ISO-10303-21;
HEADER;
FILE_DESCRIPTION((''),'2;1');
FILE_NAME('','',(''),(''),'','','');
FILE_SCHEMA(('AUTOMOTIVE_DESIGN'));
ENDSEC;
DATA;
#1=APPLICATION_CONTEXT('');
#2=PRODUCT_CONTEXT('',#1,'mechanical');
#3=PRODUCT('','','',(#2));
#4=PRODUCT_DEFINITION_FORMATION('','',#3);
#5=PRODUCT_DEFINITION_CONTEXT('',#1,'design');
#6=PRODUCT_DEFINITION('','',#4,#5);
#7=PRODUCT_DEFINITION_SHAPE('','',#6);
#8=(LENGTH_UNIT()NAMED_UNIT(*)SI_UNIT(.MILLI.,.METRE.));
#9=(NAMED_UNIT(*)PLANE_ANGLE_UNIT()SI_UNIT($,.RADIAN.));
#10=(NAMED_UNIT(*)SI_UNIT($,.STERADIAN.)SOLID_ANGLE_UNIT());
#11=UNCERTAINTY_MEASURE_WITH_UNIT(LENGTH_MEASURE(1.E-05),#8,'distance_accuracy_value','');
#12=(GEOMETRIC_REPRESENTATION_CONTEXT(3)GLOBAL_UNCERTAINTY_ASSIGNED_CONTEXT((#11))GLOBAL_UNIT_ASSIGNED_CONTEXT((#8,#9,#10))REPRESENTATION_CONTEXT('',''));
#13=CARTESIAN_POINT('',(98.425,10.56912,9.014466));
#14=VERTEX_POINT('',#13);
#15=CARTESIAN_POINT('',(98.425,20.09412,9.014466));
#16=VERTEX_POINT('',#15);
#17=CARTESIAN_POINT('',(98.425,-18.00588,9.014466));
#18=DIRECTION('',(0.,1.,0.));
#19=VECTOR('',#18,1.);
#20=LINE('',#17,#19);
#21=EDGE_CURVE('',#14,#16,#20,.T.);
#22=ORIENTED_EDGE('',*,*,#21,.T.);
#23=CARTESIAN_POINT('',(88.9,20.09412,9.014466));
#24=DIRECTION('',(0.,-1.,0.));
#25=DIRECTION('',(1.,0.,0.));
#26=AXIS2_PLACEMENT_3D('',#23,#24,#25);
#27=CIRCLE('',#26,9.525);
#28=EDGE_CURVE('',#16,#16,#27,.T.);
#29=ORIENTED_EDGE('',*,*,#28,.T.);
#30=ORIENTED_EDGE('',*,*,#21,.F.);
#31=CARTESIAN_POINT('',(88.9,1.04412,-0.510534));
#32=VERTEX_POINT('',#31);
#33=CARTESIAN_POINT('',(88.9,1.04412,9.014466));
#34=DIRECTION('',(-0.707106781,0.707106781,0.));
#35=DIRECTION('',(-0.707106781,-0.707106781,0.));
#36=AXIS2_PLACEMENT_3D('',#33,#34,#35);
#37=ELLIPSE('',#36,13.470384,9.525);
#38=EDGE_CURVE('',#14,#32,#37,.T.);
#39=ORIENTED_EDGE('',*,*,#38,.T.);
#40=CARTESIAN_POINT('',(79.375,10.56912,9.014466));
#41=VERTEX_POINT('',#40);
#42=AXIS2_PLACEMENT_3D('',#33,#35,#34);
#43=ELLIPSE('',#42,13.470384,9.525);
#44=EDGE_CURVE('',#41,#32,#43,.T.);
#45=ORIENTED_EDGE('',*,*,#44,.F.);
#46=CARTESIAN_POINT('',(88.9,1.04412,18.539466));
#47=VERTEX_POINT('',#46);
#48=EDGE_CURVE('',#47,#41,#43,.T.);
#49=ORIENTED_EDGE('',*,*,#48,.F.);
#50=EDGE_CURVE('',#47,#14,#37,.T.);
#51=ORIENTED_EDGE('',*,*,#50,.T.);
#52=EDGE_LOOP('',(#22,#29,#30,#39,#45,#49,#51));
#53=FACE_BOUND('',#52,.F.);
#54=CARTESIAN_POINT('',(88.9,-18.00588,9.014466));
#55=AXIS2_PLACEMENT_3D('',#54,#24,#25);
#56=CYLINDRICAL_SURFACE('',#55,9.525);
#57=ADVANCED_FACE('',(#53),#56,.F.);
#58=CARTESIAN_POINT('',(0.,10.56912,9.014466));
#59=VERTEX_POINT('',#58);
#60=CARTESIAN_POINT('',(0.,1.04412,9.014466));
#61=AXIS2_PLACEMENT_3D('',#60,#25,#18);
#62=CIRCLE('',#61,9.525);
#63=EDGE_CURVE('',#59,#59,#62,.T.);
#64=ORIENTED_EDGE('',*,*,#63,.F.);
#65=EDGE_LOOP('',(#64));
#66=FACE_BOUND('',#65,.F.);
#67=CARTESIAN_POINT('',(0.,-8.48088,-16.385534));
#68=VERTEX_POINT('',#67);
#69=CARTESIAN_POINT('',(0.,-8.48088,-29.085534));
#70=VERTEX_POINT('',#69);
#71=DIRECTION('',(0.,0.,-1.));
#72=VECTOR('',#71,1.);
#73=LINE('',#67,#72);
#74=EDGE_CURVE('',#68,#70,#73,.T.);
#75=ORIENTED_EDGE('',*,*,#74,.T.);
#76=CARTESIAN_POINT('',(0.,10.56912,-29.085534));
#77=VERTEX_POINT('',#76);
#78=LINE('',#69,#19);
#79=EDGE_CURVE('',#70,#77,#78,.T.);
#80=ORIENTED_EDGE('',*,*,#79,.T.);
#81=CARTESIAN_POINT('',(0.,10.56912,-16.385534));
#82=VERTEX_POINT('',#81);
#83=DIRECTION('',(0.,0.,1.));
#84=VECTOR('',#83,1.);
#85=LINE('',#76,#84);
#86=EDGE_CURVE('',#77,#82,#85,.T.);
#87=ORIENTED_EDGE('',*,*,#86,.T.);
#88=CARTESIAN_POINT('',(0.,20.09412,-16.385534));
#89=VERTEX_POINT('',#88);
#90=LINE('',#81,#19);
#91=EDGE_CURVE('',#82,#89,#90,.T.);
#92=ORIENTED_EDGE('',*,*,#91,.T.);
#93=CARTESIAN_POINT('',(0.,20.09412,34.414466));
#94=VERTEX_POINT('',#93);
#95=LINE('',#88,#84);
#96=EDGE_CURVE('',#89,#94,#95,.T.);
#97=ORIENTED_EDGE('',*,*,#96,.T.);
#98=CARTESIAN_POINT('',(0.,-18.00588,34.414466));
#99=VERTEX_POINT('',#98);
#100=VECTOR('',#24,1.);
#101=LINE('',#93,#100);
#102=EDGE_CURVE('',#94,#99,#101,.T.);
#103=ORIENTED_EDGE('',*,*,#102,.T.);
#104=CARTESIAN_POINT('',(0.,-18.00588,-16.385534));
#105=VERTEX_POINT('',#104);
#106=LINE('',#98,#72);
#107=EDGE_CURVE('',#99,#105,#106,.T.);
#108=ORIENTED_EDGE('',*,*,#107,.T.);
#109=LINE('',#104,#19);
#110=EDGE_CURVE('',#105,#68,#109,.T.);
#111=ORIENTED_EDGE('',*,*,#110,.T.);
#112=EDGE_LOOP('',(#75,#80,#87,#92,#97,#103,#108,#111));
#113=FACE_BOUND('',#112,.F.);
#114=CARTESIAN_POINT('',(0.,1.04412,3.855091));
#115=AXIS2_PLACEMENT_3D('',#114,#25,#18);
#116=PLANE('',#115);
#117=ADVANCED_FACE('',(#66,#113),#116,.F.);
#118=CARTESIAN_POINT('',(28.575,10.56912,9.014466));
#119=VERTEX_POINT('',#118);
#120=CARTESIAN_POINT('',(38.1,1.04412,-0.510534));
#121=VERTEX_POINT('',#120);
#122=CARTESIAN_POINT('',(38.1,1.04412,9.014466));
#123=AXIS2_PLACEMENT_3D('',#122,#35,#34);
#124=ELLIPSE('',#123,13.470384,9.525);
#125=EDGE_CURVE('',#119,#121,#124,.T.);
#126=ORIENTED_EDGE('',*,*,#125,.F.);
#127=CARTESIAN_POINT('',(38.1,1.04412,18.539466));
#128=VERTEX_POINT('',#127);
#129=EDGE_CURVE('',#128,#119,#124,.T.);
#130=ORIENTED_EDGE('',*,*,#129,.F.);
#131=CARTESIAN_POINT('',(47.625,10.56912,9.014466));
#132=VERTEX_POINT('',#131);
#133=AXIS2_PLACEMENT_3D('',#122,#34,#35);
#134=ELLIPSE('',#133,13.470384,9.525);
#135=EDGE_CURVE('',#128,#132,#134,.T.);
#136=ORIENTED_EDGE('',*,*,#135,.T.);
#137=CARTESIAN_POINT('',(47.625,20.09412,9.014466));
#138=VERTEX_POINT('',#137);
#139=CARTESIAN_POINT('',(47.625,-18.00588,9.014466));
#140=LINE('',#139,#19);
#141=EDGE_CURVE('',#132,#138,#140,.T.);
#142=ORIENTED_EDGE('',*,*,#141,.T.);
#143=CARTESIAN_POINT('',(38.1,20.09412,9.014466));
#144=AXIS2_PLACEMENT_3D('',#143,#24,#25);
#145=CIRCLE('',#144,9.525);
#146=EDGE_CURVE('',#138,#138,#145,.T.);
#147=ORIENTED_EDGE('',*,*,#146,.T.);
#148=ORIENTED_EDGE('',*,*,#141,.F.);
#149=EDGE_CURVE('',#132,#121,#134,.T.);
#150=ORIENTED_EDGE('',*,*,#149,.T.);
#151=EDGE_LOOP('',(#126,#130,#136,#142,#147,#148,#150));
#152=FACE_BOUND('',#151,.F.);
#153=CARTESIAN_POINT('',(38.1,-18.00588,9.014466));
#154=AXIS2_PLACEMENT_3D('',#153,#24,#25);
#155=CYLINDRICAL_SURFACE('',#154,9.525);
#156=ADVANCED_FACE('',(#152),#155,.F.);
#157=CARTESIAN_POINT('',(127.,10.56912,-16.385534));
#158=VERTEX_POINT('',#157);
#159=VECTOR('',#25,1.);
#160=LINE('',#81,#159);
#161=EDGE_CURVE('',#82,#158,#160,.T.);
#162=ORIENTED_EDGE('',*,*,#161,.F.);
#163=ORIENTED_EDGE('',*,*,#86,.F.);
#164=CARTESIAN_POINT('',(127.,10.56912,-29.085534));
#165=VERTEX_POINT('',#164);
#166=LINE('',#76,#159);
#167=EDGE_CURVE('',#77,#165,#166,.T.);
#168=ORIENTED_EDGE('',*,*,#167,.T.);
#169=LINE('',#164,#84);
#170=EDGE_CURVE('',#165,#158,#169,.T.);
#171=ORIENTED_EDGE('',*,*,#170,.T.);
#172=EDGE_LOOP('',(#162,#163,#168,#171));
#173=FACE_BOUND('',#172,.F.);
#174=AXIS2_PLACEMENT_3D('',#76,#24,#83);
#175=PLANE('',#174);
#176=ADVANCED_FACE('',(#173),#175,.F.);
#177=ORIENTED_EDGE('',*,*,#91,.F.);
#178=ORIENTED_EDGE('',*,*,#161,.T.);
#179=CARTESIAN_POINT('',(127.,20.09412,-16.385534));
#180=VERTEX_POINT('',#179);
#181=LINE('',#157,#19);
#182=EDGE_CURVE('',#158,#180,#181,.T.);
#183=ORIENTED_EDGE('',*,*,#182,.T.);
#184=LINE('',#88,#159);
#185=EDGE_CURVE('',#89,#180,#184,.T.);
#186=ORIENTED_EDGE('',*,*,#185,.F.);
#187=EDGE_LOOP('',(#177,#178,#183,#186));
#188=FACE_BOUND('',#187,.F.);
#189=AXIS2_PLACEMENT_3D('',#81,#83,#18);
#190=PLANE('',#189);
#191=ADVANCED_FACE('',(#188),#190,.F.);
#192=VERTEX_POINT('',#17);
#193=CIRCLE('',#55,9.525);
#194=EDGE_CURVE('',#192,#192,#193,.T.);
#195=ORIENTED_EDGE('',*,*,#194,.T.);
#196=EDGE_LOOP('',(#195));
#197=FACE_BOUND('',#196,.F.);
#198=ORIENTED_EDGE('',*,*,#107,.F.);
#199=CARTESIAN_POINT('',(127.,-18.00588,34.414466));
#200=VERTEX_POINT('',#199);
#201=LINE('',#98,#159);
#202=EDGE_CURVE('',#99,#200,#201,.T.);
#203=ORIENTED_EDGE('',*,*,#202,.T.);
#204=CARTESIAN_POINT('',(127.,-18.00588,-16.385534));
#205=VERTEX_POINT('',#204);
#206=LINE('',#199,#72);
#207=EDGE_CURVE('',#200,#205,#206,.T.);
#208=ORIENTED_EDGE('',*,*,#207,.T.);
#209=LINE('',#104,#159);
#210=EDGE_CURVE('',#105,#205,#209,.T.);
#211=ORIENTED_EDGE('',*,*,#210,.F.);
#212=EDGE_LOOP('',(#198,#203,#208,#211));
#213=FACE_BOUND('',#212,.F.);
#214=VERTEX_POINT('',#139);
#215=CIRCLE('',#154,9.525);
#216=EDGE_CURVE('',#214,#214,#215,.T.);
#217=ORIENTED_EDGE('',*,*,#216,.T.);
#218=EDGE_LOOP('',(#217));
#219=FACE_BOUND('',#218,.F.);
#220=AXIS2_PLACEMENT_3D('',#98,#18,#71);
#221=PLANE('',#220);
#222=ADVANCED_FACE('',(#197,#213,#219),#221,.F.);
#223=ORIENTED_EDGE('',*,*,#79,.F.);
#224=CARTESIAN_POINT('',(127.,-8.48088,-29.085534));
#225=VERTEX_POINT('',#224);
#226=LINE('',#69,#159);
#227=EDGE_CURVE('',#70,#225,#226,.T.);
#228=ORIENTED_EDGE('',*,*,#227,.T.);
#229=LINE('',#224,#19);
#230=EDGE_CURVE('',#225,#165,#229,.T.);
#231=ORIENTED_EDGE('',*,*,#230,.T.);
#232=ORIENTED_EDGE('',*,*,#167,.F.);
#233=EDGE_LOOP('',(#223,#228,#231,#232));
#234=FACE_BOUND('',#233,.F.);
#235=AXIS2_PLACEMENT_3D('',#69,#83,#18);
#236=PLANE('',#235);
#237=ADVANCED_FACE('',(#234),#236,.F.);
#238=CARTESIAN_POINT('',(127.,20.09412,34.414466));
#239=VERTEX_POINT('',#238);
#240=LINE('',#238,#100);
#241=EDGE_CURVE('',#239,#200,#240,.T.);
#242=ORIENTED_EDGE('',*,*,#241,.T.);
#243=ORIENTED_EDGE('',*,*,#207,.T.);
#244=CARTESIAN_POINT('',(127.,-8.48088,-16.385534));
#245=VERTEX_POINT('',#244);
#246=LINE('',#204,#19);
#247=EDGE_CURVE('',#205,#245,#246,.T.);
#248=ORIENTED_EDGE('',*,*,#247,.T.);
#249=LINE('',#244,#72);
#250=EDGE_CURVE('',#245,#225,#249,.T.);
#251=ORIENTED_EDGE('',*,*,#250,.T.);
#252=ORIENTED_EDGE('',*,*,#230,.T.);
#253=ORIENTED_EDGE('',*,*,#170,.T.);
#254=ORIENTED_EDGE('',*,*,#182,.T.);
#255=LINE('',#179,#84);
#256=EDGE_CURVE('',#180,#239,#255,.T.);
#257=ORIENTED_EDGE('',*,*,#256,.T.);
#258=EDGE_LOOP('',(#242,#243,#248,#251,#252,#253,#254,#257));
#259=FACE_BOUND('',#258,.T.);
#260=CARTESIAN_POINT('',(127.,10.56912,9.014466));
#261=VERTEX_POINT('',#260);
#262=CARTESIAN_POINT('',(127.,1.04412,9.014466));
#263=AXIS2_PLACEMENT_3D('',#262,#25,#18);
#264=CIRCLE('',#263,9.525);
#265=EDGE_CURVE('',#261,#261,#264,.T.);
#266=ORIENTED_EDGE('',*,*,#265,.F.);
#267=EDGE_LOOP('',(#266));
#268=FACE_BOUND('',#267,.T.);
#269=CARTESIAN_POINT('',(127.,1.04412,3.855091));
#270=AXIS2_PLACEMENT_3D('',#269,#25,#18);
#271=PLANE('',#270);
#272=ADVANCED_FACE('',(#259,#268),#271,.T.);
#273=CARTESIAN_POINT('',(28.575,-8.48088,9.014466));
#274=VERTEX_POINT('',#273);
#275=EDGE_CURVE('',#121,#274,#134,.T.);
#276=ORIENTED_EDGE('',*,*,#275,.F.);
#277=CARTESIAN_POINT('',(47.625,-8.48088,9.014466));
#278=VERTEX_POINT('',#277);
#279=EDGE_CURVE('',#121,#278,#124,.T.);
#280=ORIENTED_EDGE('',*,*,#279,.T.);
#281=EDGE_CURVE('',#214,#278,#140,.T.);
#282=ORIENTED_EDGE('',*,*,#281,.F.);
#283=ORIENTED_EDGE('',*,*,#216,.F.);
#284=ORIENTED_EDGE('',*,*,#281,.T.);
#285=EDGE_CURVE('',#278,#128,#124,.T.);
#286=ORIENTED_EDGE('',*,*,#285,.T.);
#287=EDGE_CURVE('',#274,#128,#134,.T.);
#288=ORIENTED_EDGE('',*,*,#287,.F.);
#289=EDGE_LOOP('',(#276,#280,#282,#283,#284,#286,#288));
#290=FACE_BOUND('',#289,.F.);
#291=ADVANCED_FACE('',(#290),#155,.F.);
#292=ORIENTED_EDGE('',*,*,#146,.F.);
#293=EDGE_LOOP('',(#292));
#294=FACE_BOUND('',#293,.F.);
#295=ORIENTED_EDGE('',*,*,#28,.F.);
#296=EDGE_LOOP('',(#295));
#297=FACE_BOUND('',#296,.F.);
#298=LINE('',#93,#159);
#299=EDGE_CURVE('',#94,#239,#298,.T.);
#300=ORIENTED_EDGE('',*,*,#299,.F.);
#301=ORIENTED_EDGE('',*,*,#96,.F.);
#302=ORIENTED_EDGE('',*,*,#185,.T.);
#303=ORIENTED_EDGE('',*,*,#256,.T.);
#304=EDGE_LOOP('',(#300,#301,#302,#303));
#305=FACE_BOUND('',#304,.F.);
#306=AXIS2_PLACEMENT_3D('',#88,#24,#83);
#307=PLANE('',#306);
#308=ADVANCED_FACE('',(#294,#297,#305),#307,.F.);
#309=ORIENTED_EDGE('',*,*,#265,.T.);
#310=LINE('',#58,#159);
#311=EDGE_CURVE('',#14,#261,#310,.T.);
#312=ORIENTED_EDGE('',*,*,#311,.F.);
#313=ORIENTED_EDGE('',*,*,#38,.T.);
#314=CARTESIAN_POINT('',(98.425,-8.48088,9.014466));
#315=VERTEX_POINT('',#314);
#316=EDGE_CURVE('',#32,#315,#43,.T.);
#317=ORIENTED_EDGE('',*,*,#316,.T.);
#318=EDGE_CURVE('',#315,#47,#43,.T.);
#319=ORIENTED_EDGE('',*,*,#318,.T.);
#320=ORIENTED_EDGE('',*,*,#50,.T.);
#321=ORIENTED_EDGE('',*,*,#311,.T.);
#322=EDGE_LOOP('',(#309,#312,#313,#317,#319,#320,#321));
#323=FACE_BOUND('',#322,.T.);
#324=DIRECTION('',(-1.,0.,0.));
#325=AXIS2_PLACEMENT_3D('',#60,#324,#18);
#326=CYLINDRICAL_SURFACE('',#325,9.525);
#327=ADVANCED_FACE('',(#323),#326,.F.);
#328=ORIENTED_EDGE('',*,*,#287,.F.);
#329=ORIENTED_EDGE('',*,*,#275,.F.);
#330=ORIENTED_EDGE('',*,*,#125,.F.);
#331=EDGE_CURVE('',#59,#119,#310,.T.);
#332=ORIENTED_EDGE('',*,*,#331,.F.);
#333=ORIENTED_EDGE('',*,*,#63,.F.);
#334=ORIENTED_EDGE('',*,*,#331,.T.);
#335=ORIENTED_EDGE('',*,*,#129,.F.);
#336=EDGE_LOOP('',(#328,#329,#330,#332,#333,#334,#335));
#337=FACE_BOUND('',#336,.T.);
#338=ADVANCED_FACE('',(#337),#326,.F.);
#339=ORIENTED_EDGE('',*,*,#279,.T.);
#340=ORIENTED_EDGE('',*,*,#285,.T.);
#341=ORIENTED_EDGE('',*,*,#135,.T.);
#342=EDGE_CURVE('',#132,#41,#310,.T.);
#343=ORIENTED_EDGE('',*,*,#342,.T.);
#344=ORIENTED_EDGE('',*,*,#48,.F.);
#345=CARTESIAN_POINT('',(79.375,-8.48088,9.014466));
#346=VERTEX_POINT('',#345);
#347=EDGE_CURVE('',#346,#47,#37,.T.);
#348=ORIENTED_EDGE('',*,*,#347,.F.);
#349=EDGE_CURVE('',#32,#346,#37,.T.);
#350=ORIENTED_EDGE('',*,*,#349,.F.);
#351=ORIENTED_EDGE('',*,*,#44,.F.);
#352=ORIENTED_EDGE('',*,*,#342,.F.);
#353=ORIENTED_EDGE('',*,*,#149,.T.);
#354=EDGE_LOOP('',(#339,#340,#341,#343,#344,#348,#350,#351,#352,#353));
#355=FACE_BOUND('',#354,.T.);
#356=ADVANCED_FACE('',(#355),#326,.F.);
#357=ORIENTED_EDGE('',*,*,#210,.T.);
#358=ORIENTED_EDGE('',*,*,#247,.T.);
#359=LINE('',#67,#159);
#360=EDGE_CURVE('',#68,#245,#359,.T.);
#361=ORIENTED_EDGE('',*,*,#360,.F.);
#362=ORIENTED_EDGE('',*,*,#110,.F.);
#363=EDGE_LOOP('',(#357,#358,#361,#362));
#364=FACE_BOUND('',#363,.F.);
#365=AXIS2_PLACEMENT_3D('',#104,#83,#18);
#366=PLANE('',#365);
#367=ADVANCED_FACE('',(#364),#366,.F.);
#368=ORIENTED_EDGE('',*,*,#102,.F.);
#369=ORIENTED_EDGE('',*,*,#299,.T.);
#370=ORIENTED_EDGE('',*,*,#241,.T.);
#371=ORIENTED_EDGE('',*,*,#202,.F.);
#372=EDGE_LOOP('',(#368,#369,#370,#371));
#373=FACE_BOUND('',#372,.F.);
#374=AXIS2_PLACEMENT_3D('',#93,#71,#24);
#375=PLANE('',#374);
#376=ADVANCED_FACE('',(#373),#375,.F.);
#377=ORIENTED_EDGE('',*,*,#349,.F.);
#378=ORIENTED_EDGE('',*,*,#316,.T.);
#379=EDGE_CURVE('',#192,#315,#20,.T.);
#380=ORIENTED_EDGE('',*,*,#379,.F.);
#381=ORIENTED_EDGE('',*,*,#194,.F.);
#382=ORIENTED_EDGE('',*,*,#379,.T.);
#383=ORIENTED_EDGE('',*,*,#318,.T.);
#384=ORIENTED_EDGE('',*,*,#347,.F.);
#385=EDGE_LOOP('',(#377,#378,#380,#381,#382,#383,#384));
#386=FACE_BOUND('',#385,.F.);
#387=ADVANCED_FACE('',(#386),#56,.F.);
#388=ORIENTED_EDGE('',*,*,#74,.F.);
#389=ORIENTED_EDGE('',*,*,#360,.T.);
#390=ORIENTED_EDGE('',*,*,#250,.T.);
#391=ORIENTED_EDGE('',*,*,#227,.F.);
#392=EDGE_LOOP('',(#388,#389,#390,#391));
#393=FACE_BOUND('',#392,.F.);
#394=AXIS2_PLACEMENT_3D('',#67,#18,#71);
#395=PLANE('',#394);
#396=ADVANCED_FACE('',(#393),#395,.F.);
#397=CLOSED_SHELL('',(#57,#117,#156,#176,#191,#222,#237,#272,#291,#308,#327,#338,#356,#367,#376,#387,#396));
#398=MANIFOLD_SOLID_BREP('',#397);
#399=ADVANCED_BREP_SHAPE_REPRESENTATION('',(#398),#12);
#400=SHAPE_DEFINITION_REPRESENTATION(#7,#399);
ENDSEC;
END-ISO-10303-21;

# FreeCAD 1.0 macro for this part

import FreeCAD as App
import Part
import Sketcher

V = App.Vector
Q = App.Units.Quantity


def add_polygon(sketch, points):
    """Adds a closed chain of lines whose ends are joined by coincident constraints."""
    first, n = sketch.GeometryCount, len(points)
    for a, b in zip(points, points[1:] + points[:1]):
        sketch.addGeometry(Part.LineSegment(App.Vector(*a, 0), App.Vector(*b, 0)), False)
    for i in range(n):
        sketch.addConstraint(Sketcher.Constraint("Coincident", first + i, 2, first + (i + 1) % n, 1))

doc = App.newDocument("Part")
params = doc.addObject("Spreadsheet::Sheet", "Params")
for row, (alias, value) in enumerate([
    ("sketch1_diameter", "0.75 in"),
    ("sketch1_height", "2 in"),
    ("sketch1_width", "1.5 in"),
    ("sketch1_height2", "0.5 in"),
    ("sketch1_width2", "0.75 in"),
    ("pad1_length", "5 in"),
    ("sketch2_diameter", "0.75 in"),
    ("pocket1_length", "1.51 in"),
], start=1):
    params.set(f"A{row}", alias)
    params.set(f"B{row}", "=" + value)
    params.setAlias(f"B{row}", alias)

body = doc.addObject("PartDesign::Body", "Body")

# Sketch on YZ plane
sketch1 = body.newObject("Sketcher::SketchObject", "Sketch")
sketch1.AttachmentSupport = (doc.getObject("YZ_Plane"), [""])
sketch1.MapMode = "FlatFace"
add_polygon(sketch1, [(20, 34), (-18, 34), (-18, -16), (-8, -16), (-8, -29), (11, -29), (11, -16), (20, -16)])  # lines 0-7
sketch1.addGeometry(Part.Circle(V(1, 9, 0), V(0, 0, 1), 10), False)  # 8
sketch1.addConstraint(Sketcher.Constraint("Horizontal", 0))
sketch1.addConstraint(Sketcher.Constraint("Vertical", 1))
sketch1.addConstraint(Sketcher.Constraint("Horizontal", 2))
sketch1.addConstraint(Sketcher.Constraint("Vertical", 3))
sketch1.addConstraint(Sketcher.Constraint("Horizontal", 4))
sketch1.addConstraint(Sketcher.Constraint("Vertical", 5))
sketch1.addConstraint(Sketcher.Constraint("Horizontal", 6))
sketch1.addConstraint(Sketcher.Constraint("Vertical", 7))
sketch1.addConstraint(Sketcher.Constraint("Horizontal", 2, 2, 5, 2))
sketch1.addConstraint(Sketcher.Constraint("Equal", 2, 6))
sketch1.addConstraint(Sketcher.Constraint("Diameter", 8, Q("0.75 in")))
sketch1.addConstraint(Sketcher.Constraint("DistanceY", 1, 2, 1, 1, Q("2 in")))
sketch1.addConstraint(Sketcher.Constraint("DistanceX", 0, 2, 0, 1, Q("1.5 in")))
sketch1.addConstraint(Sketcher.Constraint("DistanceY", 3, 2, 3, 1, Q("0.5 in")))
sketch1.addConstraint(Sketcher.Constraint("DistanceY", 8, 3, 0, 2, Q("1 in")))
sketch1.addConstraint(Sketcher.Constraint("DistanceX", 4, 1, 4, 2, Q("0.75 in")))
sketch1.addConstraint(Sketcher.Constraint("DistanceX", 0, 2, 8, 3, Q("0.75 in")))
sketch1.addConstraint(Sketcher.Constraint("DistanceX", -1, 1, 8, 3, Q("1.04412 mm")))
sketch1.addConstraint(Sketcher.Constraint("DistanceY", -1, 1, 8, 3, Q("9.014466 mm")))
sketch1.setExpression("Constraints[18]", "Params.sketch1_diameter")
sketch1.setExpression("Constraints[19]", "Params.sketch1_height")
sketch1.setExpression("Constraints[20]", "Params.sketch1_width")
sketch1.setExpression("Constraints[21]", "Params.sketch1_height2")
sketch1.setExpression("Constraints[23]", "Params.sketch1_width2")
pad1 = body.newObject("PartDesign::Pad", "Pad")
pad1.Profile = sketch1
pad1.setExpression("Length", "Params.pad1_length")

# Sketch on XZ plane
sketch2 = body.newObject("Sketcher::SketchObject", "Sketch001")
sketch2.AttachmentSupport = (doc.getObject("XZ_Plane"), [""])
sketch2.MapMode = "FlatFace"
sketch2.AttachmentOffset = App.Placement(V(0, 0, 18.00588), App.Rotation())
sketch2.addGeometry(Part.Circle(V(38, 9, 0), V(0, 0, 1), 10), False)
sketch2.addGeometry(Part.Circle(V(89, 9, 0), V(0, 0, 1), 10), False)
sketch2.addConstraint(Sketcher.Constraint("Equal", 0, 1))
sketch2.addConstraint(Sketcher.Constraint("Horizontal", 0, 3, 1, 3))
sketch2.addConstraint(Sketcher.Constraint("Diameter", 0, Q("0.75 in")))
sketch2.addConstraint(Sketcher.Constraint("DistanceX", 0, 3, 1, 3, Q("2 in")))
sketch2.addConstraint(Sketcher.Constraint("DistanceX", -1, 1, 0, 3, Q("1.5 in")))
sketch2.addConstraint(Sketcher.Constraint("DistanceY", -1, 1, 0, 3, Q("9.014466 mm")))
sketch2.setExpression("Constraints[2]", "Params.sketch2_diameter")
pocket1 = body.newObject("PartDesign::Pocket", "Pocket")
pocket1.Profile = sketch2
pocket1.setExpression("Length", "Params.pocket1_length")

doc.recompute()
